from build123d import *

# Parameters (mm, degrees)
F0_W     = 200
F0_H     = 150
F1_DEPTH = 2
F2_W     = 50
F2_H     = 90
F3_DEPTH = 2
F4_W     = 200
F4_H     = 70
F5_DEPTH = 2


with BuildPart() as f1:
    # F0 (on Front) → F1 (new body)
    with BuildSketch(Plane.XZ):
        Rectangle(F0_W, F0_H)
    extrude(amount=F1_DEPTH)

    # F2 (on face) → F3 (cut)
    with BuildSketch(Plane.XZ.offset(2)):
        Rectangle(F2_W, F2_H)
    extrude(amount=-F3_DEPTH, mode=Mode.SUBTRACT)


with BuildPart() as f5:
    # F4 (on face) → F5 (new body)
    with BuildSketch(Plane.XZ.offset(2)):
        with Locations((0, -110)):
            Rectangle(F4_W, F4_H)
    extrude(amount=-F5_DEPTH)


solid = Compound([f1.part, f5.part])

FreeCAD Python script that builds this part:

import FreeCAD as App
import Part
import Sketcher
from FreeCAD import Vector

doc = App.newDocument("Part")
body = doc.addObject("PartDesign::Body", "Body")

# Sketch on XZ plane
sketch1 = doc.addObject("Sketcher::SketchObject", "Sketch")
body.addObject(sketch1)
sketch1.AttachmentSupport = (doc.XZ_Plane, [""])
sketch1.MapMode = "FlatFace"
sketch1.addGeometry([
    Part.LineSegment(Vector(-100, 75, 0), Vector(-100, -75, 0)),
    Part.LineSegment(Vector(-100, -75, 0), Vector(100, -75, 0)),
    Part.LineSegment(Vector(100, -75, 0), Vector(100, 75, 0)),
    Part.LineSegment(Vector(100, 75, 0), Vector(-100, 75, 0)),
], False)
sketch1.addConstraint([
    Sketcher.Constraint("Coincident", 0, 2, 1, 1),
    Sketcher.Constraint("Coincident", 1, 2, 2, 1),
    Sketcher.Constraint("Coincident", 2, 2, 3, 1),
    Sketcher.Constraint("Coincident", 3, 2, 0, 1),
    Sketcher.Constraint("Vertical", 0),
    Sketcher.Constraint("Horizontal", 1),
    Sketcher.Constraint("Vertical", 2),
    Sketcher.Constraint("Horizontal", 3),
    Sketcher.Constraint("Symmetric", 0, 2, 2, 2, -1, 1),
    Sketcher.Constraint("DistanceX", 1, 1, 1, 2, 200.0),
    Sketcher.Constraint("DistanceY", 0, 2, 0, 1, 150.0),
])
pad1 = doc.addObject("PartDesign::Pad", "Pad")
body.addObject(pad1)
pad1.Profile = sketch1
pad1.Length = 2

# Sketch on XZ plane
sketch2 = doc.addObject("Sketcher::SketchObject", "Sketch001")
body.addObject(sketch2)
sketch2.AttachmentSupport = (doc.XZ_Plane, [""])
sketch2.MapMode = "FlatFace"
sketch2.AttachmentOffset = App.Placement(Vector(0, 0, 2), App.Rotation())
sketch2.addGeometry([
    Part.LineSegment(Vector(-25, 45, 0), Vector(-25, -45, 0)),
    Part.LineSegment(Vector(-25, -45, 0), Vector(25, -45, 0)),
    Part.LineSegment(Vector(25, -45, 0), Vector(25, 45, 0)),
    Part.LineSegment(Vector(25, 45, 0), Vector(-25, 45, 0)),
], False)
sketch2.addConstraint([
    Sketcher.Constraint("Coincident", 0, 2, 1, 1),
    Sketcher.Constraint("Coincident", 1, 2, 2, 1),
    Sketcher.Constraint("Coincident", 2, 2, 3, 1),
    Sketcher.Constraint("Coincident", 3, 2, 0, 1),
    Sketcher.Constraint("Vertical", 0),
    Sketcher.Constraint("Horizontal", 1),
    Sketcher.Constraint("Vertical", 2),
    Sketcher.Constraint("Horizontal", 3),
    Sketcher.Constraint("Symmetric", 0, 2, 2, 2, -1, 1),
    Sketcher.Constraint("DistanceX", 1, 1, 1, 2, 50.0),
    Sketcher.Constraint("DistanceY", 0, 2, 0, 1, 90.0),
])
pocket1 = doc.addObject("PartDesign::Pocket", "Pocket")
body.addObject(pocket1)
pocket1.Profile = sketch2
pocket1.Length = 2
body2 = doc.addObject("PartDesign::Body", "Body001")

# Sketch on XZ plane
sketch3 = doc.addObject("Sketcher::SketchObject", "Sketch002")
body2.addObject(sketch3)
sketch3.AttachmentSupport = (doc.getObject("XZ_Plane001"), [""])
sketch3.MapMode = "FlatFace"
sketch3.AttachmentOffset = App.Placement(Vector(0, 0, 2), App.Rotation())
sketch3.addGeometry([
    Part.LineSegment(Vector(-100, -75, 0), Vector(-100, -145, 0)),
    Part.LineSegment(Vector(-100, -145, 0), Vector(100, -145, 0)),
    Part.LineSegment(Vector(100, -145, 0), Vector(100, -75, 0)),
    Part.LineSegment(Vector(100, -75, 0), Vector(-100, -75, 0)),
], False)
sketch3.addConstraint([
    Sketcher.Constraint("Coincident", 0, 2, 1, 1),
    Sketcher.Constraint("Coincident", 1, 2, 2, 1),
    Sketcher.Constraint("Coincident", 2, 2, 3, 1),
    Sketcher.Constraint("Coincident", 3, 2, 0, 1),
    Sketcher.Constraint("Vertical", 0),
    Sketcher.Constraint("Horizontal", 1),
    Sketcher.Constraint("Vertical", 2),
    Sketcher.Constraint("Horizontal", 3),
    Sketcher.Constraint("DistanceX", 1, 1, 1, 2, 200.0),
    Sketcher.Constraint("DistanceY", 0, 2, 0, 1, 70.0),
    Sketcher.Constraint("DistanceX", 0, 2, -1, 1, 100.0),
    Sketcher.Constraint("DistanceY", 0, 2, -1, 1, 145.0),
])
pad2 = doc.addObject("PartDesign::Pad", "Pad001")
body2.addObject(pad2)
pad2.Profile = sketch3
pad2.Length = 2
pad2.Reversed = True

doc.recompute()
